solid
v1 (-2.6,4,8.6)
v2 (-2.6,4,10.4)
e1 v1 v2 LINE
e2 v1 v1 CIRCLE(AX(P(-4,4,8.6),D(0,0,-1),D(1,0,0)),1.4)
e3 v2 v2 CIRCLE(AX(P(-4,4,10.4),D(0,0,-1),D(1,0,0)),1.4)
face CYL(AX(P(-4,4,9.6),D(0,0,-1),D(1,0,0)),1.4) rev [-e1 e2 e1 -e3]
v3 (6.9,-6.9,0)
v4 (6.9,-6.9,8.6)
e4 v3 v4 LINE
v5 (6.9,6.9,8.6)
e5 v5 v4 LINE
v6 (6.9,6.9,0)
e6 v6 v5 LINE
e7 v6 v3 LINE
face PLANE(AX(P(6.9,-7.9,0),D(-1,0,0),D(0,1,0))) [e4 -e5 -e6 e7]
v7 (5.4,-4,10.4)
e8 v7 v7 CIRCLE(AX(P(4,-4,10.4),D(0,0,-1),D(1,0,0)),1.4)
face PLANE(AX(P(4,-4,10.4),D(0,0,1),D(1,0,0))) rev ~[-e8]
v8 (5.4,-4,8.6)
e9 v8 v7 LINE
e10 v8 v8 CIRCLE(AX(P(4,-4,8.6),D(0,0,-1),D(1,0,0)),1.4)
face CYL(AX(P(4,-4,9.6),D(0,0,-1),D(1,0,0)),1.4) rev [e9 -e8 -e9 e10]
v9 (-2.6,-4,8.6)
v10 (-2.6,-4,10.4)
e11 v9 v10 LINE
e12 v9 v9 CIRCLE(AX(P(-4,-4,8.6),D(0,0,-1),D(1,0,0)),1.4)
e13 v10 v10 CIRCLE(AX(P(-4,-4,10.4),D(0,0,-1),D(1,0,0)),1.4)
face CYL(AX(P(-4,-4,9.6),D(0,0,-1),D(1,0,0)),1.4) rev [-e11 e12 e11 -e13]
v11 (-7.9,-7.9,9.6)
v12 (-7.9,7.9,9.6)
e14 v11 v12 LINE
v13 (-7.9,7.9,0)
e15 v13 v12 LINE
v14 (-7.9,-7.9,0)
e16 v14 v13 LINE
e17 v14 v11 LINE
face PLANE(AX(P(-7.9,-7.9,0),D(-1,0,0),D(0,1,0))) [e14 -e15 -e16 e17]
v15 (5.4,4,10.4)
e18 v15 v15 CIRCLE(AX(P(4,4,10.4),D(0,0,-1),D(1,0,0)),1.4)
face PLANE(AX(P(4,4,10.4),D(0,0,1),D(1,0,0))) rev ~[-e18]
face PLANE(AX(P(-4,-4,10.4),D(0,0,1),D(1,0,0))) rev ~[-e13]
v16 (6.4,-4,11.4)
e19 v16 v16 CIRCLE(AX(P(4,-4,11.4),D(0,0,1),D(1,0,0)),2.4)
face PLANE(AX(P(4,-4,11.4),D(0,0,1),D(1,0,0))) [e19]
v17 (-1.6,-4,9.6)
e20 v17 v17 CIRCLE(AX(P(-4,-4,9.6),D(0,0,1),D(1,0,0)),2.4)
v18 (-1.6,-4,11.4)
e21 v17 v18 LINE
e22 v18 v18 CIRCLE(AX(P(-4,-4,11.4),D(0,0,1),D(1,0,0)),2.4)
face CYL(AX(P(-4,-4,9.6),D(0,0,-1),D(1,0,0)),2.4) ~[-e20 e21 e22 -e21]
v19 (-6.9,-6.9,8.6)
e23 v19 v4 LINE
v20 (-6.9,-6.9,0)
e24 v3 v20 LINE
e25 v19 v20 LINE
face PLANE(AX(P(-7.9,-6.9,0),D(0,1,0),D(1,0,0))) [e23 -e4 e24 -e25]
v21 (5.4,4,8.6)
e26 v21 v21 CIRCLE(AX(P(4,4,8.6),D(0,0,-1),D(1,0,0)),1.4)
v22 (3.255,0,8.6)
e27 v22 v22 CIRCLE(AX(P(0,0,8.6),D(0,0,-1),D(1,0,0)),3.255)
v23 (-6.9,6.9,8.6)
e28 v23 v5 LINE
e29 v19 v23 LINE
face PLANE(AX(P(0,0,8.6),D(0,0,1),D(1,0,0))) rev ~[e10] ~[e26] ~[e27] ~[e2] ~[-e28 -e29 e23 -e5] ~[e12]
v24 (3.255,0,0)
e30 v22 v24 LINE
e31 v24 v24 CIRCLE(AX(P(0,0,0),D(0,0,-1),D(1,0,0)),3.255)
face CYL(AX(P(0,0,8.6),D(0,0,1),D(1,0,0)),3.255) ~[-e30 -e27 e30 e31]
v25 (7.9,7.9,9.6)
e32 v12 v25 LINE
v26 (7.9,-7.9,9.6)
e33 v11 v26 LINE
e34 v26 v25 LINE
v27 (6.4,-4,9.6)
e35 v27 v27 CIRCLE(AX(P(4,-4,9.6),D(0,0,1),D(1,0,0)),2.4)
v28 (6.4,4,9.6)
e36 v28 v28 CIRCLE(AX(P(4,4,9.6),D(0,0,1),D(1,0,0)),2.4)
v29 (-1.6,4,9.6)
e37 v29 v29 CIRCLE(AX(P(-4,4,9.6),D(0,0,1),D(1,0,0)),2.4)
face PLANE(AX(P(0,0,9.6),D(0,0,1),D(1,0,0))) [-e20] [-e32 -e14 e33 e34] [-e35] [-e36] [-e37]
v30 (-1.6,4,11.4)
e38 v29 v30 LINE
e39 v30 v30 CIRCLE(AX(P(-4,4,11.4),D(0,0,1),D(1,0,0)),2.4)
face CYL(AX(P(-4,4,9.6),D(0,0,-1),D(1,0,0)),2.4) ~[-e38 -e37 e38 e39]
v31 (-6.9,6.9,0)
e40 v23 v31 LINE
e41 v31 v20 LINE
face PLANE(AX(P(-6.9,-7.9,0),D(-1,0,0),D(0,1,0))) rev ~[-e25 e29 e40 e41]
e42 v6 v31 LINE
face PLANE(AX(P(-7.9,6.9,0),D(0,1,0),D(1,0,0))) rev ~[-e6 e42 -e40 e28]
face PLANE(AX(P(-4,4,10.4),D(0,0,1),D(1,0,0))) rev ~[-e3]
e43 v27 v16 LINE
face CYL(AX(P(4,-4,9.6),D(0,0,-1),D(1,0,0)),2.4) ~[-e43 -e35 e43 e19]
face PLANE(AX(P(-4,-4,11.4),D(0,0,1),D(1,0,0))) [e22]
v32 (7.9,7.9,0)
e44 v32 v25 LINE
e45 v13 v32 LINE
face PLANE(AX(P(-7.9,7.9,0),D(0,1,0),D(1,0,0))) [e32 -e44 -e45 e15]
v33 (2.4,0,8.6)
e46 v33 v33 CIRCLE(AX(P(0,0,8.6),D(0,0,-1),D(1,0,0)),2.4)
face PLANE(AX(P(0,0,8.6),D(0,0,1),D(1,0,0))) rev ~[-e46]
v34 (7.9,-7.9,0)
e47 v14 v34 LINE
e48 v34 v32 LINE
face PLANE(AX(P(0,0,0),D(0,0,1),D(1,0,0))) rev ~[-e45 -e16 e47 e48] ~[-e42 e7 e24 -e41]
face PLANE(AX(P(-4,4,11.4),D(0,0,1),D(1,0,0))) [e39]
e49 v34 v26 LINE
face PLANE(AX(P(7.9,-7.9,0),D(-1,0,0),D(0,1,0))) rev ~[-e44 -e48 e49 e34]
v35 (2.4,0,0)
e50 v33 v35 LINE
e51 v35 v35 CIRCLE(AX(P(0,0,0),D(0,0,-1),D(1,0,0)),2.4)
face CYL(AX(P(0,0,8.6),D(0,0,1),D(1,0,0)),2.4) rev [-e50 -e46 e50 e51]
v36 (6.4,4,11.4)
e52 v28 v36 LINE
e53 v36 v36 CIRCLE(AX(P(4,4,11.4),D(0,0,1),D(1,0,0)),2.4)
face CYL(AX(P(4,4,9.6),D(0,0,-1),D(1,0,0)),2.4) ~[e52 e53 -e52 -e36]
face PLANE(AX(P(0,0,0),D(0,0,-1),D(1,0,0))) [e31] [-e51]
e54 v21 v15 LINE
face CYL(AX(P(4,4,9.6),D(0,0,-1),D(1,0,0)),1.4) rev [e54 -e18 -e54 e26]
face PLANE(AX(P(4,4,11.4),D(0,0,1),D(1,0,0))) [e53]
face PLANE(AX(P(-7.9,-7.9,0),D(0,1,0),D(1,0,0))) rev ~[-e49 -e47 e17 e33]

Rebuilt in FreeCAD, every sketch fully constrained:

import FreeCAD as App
import Part
import Sketcher

V = App.Vector


def faces_at(feature, points):
    """Names of the faces that lie closest to the given points."""
    faces = feature.Shape.Faces
    near = lambda p: min(range(len(faces)), key=lambda i: faces[i].distToShape(Part.Vertex(*p))[0])
    return sorted({f"Face{near(p) + 1}" for p in points})


def add_polygon(sketch, points):
    """Adds a closed chain of lines whose ends are joined by coincident constraints."""
    first, n = sketch.GeometryCount, len(points)
    for a, b in zip(points, points[1:] + points[:1]):
        sketch.addGeometry(Part.LineSegment(App.Vector(*a, 0), App.Vector(*b, 0)), False)
    for i in range(n):
        sketch.addConstraint(Sketcher.Constraint("Coincident", first + i, 2, first + (i + 1) % n, 1))

doc = App.newDocument("Part")
body = doc.addObject("PartDesign::Body", "Body")

sketch1 = body.newObject("Sketcher::SketchObject", "Sketch")
sketch1.AttachmentSupport = (doc.getObject("XY_Plane"), [""])
sketch1.MapMode = "FlatFace"
add_polygon(sketch1, [(-8, 8), (-8, -8), (8, -8), (8, 8)])
sketch1.addConstraint([
    Sketcher.Constraint("Vertical", 0),
    Sketcher.Constraint("Horizontal", 1),
    Sketcher.Constraint("Vertical", 2),
    Sketcher.Constraint("Horizontal", 3),
    Sketcher.Constraint("Symmetric", 0, 2, 2, 2, -1, 1),
    Sketcher.Constraint("Equal", 3, 0),
    Sketcher.Constraint("DistanceX", 1, 1, 1, 2, 15.8),
])
pad1 = body.newObject("PartDesign::Pad", "Pad")
pad1.Profile = sketch1
pad1.Length = 9.6

sketch2 = body.newObject("Sketcher::SketchObject", "Sketch001")
sketch2.AttachmentSupport = (doc.getObject("XY_Plane"), [""])
sketch2.MapMode = "FlatFace"
sketch2.AttachmentOffset = App.Placement(V(0, 0, 9.6), App.Rotation())
sketch2.addGeometry([
    Part.Circle(V(-4, 4, 0), V(0, 0, 1), 2.4),
    Part.Circle(V(4, 4, 0), V(0, 0, 1), 2.4),
    Part.Circle(V(4, -4, 0), V(0, 0, 1), 2.4),
    Part.Circle(V(-4, -4, 0), V(0, 0, 1), 2.4),
], False)
sketch2.addConstraint([
    Sketcher.Constraint("Equal", 0, 1),
    Sketcher.Constraint("Equal", 1, 2),
    Sketcher.Constraint("Equal", 2, 3),
    Sketcher.Constraint("Symmetric", 0, 3, 2, 3, -1, 1),
    Sketcher.Constraint("Symmetric", 1, 3, 3, 3, -1, 1),
    Sketcher.Constraint("Symmetric", 0, 3, 1, 3, -2),
    Sketcher.Constraint("Diameter", 0, 4.8),
    Sketcher.Constraint("DistanceX", 0, 3, -1, 1, 4.0),
    Sketcher.Constraint("DistanceY", -1, 1, 0, 3, 4.0),
])
pad2 = body.newObject("PartDesign::Pad", "Pad001")
pad2.Profile = sketch2
pad2.Length = 1.8
doc.recompute()

thickness = body.newObject("PartDesign::Thickness", "Thickness")
thickness.Base = (pad2, faces_at(pad2, [(0, 0, 0)]))
thickness.Value = 1
thickness.Reversed = True
thickness.Join = "Intersection"

sketch3 = body.newObject("Sketcher::SketchObject", "Sketch002")
sketch3.AttachmentSupport = (doc.getObject("XY_Plane"), [""])
sketch3.MapMode = "FlatFace"
sketch3.AttachmentOffset = App.Placement(V(0, 0, 8.6), App.Rotation())
sketch3.addGeometry([
    Part.Circle(V(0, 0, 0), V(0, 0, 1), 3.3),
    Part.Circle(V(0, 0, 0), V(0, 0, 1), 2.4),
], False)
sketch3.addConstraint([
    Sketcher.Constraint("Coincident", 0, 3, -1, 1),
    Sketcher.Constraint("Coincident", 1, 3, -1, 1),
    Sketcher.Constraint("Diameter", 1, 4.8),
    Sketcher.Constraint("Diameter", 0, 6.51),
])
pad3 = body.newObject("PartDesign::Pad", "Pad002")
pad3.Profile = sketch3
pad3.Length = 8.6
pad3.Reversed = True

doc.recompute()
